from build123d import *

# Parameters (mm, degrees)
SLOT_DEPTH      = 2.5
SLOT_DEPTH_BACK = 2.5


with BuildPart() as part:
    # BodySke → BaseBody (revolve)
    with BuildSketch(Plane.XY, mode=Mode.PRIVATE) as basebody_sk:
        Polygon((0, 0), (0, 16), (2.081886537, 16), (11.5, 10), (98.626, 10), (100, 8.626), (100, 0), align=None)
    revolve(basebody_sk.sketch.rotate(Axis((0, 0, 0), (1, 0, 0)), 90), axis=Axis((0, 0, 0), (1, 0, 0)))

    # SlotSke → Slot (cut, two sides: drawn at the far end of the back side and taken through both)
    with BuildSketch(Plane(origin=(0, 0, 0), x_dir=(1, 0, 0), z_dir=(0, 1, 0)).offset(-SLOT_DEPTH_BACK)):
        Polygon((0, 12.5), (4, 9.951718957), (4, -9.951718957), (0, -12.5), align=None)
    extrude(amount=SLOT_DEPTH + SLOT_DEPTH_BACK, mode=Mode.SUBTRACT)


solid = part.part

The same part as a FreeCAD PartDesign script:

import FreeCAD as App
import Part
import Sketcher
from FreeCAD import Vector
Q = App.Units.Quantity

doc = App.newDocument("Part")
params = doc.addObject("Spreadsheet::Sheet", "Params")
for row, (alias, value) in enumerate([
    ("sketch1_width", "100 mm"),
    ("sketch1_height", "16 mm"),
    ("revolution_angle", "360 deg"),
    ("sketch2_height", "25 mm"),
    ("pocket1_length", "2.5 mm"),
    ("pocket1_length2", "2.5 mm"),
], start=1):
    params.set(f"A{row}", alias)
    params.set(f"B{row}", "=" + value)
    params.setAlias(f"B{row}", alias)

body = doc.addObject("PartDesign::Body", "Body")

sketch1 = body.newObject("Sketcher::SketchObject", "Sketch")
sketch1.AttachmentSupport = (doc.getObject("XY_Plane"), [""])
sketch1.MapMode = "FlatFace"
sketch1.addGeometry(Part.LineSegment(Vector(0, 16, 0), Vector(0, 0, 0)), False)
sketch1.addGeometry(Part.LineSegment(Vector(0, 0, 0), Vector(100, 0, 0)), False)
sketch1.addGeometry(Part.LineSegment(Vector(100, 0, 0), Vector(100, 8.6, 0)), False)
sketch1.addGeometry(Part.LineSegment(Vector(100, 8.6, 0), Vector(98.6, 10, 0)), False)
sketch1.addGeometry(Part.LineSegment(Vector(98.6, 10, 0), Vector(11.5, 10, 0)), False)
sketch1.addGeometry(Part.LineSegment(Vector(11.5, 10, 0), Vector(2.1, 16, 0)), False)
sketch1.addGeometry(Part.LineSegment(Vector(2.1, 16, 0), Vector(0, 16, 0)), False)
sketch1.addConstraint(Sketcher.Constraint("Coincident", 0, 2, 1, 1))
sketch1.addConstraint(Sketcher.Constraint("Coincident", 1, 2, 2, 1))
sketch1.addConstraint(Sketcher.Constraint("Coincident", 2, 2, 3, 1))
sketch1.addConstraint(Sketcher.Constraint("Coincident", 3, 2, 4, 1))
sketch1.addConstraint(Sketcher.Constraint("Coincident", 4, 2, 5, 1))
sketch1.addConstraint(Sketcher.Constraint("Coincident", 5, 2, 6, 1))
sketch1.addConstraint(Sketcher.Constraint("Coincident", 6, 2, 0, 1))
sketch1.addConstraint(Sketcher.Constraint("Vertical", 0))
sketch1.addConstraint(Sketcher.Constraint("Horizontal", 1))
sketch1.addConstraint(Sketcher.Constraint("Vertical", 2))
sketch1.addConstraint(Sketcher.Constraint("Horizontal", 4))
sketch1.addConstraint(Sketcher.Constraint("Horizontal", 6))
sketch1.addConstraint(Sketcher.Constraint("Coincident", 0, 2, -1, 1))
sketch1.addConstraint(Sketcher.Constraint("DistanceX", 1, 1, 1, 2, Q("100 mm")))
sketch1.addConstraint(Sketcher.Constraint("DistanceY", 0, 2, 0, 1, Q("16 mm")))
sketch1.addConstraint(Sketcher.Constraint("Angle", 3, Q("135 deg")))
sketch1.addConstraint(Sketcher.Constraint("DistanceY", -1, 1, 3, 2, Q("10 mm")))
sketch1.addConstraint(Sketcher.Constraint("Angle", 5, Q("147.5 deg")))
sketch1.addConstraint(Sketcher.Constraint("DistanceX", -1, 1, 4, 2, Q("11.5 mm")))
sketch1.addConstraint(Sketcher.Constraint("DistanceX", 4, 2, 4, 1, Q("87.126 mm")))
sketch1.setExpression("Constraints[13]", "Params.sketch1_width")
sketch1.setExpression("Constraints[14]", "Params.sketch1_height")
revolution = body.newObject("PartDesign::Revolution", "Revolution")
revolution.Profile = sketch1
revolution.ReferenceAxis = (sketch1, ["H_Axis"])
revolution.setExpression("Angle", "Params.revolution_angle")

sketch2 = body.newObject("Sketcher::SketchObject", "Sketch001")
sketch2.AttachmentSupport = (doc.getObject("XZ_Plane"), [""])
sketch2.MapMode = "FlatFace"
sketch2.addGeometry(Part.LineSegment(Vector(4, -10, 0), Vector(0, -12.5, 0)), False)
sketch2.addGeometry(Part.LineSegment(Vector(0, -12.5, 0), Vector(0, 12.5, 0)), False)
sketch2.addGeometry(Part.LineSegment(Vector(0, 12.5, 0), Vector(4, 10, 0)), False)
sketch2.addGeometry(Part.LineSegment(Vector(4, 10, 0), Vector(4, -10, 0)), False)
sketch2.addConstraint(Sketcher.Constraint("Coincident", 0, 2, 1, 1))
sketch2.addConstraint(Sketcher.Constraint("Coincident", 1, 2, 2, 1))
sketch2.addConstraint(Sketcher.Constraint("Coincident", 2, 2, 3, 1))
sketch2.addConstraint(Sketcher.Constraint("Coincident", 3, 2, 0, 1))
sketch2.addConstraint(Sketcher.Constraint("Vertical", 1))
sketch2.addConstraint(Sketcher.Constraint("Vertical", 3))
sketch2.addConstraint(Sketcher.Constraint("Symmetric", 0, 2, 1, 2, -1, 1))
sketch2.addConstraint(Sketcher.Constraint("Equal", 0, 2))
sketch2.addConstraint(Sketcher.Constraint("DistanceY", 1, 1, 1, 2, Q("25 mm")))
sketch2.addConstraint(Sketcher.Constraint("DistanceX", -1, 1, 2, 2, Q("4 mm")))
sketch2.addConstraint(Sketcher.Constraint("Angle", 0, Q("-147.5 deg")))
sketch2.setExpression("Constraints[8]", "Params.sketch2_height")
pocket1 = body.newObject("PartDesign::Pocket", "Pocket")
pocket1.Profile = sketch2
pocket1.Type = "TwoLengths"
pocket1.setExpression("Length", "Params.pocket1_length")
pocket1.setExpression("Length2", "Params.pocket1_length2")

doc.recompute()
